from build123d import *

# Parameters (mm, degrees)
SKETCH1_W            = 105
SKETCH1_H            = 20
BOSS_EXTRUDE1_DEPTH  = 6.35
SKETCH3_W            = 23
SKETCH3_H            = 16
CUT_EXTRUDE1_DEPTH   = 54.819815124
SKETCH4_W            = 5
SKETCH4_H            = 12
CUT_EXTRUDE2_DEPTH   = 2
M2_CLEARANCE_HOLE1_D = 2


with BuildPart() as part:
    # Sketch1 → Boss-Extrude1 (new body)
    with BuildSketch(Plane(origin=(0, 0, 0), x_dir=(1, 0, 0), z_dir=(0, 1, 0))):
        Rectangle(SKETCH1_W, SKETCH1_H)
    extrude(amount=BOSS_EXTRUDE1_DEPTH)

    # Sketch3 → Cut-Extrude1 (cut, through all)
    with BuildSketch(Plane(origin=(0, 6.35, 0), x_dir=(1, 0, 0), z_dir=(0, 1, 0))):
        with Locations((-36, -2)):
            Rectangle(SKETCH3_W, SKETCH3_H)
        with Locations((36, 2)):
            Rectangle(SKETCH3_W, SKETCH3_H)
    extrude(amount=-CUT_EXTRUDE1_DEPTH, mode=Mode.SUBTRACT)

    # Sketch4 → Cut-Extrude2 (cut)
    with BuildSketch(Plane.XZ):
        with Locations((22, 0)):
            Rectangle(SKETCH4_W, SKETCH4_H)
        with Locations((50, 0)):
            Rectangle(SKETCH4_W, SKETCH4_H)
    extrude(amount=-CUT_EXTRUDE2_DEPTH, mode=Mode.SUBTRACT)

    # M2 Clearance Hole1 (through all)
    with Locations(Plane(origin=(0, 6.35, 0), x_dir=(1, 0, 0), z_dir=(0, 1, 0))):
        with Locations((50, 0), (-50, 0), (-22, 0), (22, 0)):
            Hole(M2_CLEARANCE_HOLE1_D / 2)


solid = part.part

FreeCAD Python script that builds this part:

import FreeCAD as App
import Part
import Sketcher

V = App.Vector
Q = App.Units.Quantity


def add_polygon(sketch, points):
    """Adds a closed chain of lines whose ends are joined by coincident constraints."""
    first, n = sketch.GeometryCount, len(points)
    for a, b in zip(points, points[1:] + points[:1]):
        sketch.addGeometry(Part.LineSegment(App.Vector(*a, 0), App.Vector(*b, 0)), False)
    for i in range(n):
        sketch.addConstraint(Sketcher.Constraint("Coincident", first + i, 2, first + (i + 1) % n, 1))

doc = App.newDocument("Part")
body = doc.addObject("PartDesign::Body", "Body")

sketch1 = doc.addObject("Sketcher::SketchObject", "Sketch")
body.addObject(sketch1)
sketch1.AttachmentSupport = (doc.XZ_Plane, [""])
sketch1.MapMode = "FlatFace"
add_polygon(sketch1, [(-52, -10), (-52, 10), (52, 10), (52, -10)])
sketch1.addConstraint(Sketcher.Constraint("Vertical", 0))
sketch1.addConstraint(Sketcher.Constraint("Horizontal", 1))
sketch1.addConstraint(Sketcher.Constraint("Vertical", 2))
sketch1.addConstraint(Sketcher.Constraint("Horizontal", 3))
sketch1.addConstraint(Sketcher.Constraint("Symmetric", 0, 2, 2, 2, -1, 1))
sketch1.addConstraint(Sketcher.Constraint("DistanceX", 1, 1, 1, 2, Q("105 mm")))
sketch1.addConstraint(Sketcher.Constraint("DistanceY", 0, 1, 0, 2, Q("20 mm")))
pad1 = doc.addObject("PartDesign::Pad", "Pad")
body.addObject(pad1)
pad1.Profile = sketch1
pad1.Length = 6.35
pad1.Reversed = True

sketch2 = doc.addObject("Sketcher::SketchObject", "Sketch001")
body.addObject(sketch2)
sketch2.AttachmentSupport = (doc.XZ_Plane, [""])
sketch2.MapMode = "FlatFace"
sketch2.AttachmentOffset = App.Placement(V(0, 0, -6.35), App.Rotation())
add_polygon(sketch2, [(-48, -6), (-48, 10), (-24, 10), (-24, -6)])
add_polygon(sketch2, [(24, -10), (24, 6), (48, 6), (48, -10)])
sketch2.addConstraint(Sketcher.Constraint("Vertical", 0))
sketch2.addConstraint(Sketcher.Constraint("Horizontal", 1))
sketch2.addConstraint(Sketcher.Constraint("Vertical", 2))
sketch2.addConstraint(Sketcher.Constraint("Horizontal", 3))
sketch2.addConstraint(Sketcher.Constraint("Vertical", 4))
sketch2.addConstraint(Sketcher.Constraint("Horizontal", 5))
sketch2.addConstraint(Sketcher.Constraint("Vertical", 6))
sketch2.addConstraint(Sketcher.Constraint("Horizontal", 7))
sketch2.addConstraint(Sketcher.Constraint("Symmetric", 2, 2, 4, 2, -1, 1))
sketch2.addConstraint(Sketcher.Constraint("Symmetric", 0, 2, 6, 2, -1, 1))
sketch2.addConstraint(Sketcher.Constraint("DistanceX", 1, 1, 1, 2, Q("23 mm")))
sketch2.addConstraint(Sketcher.Constraint("DistanceY", 0, 1, 0, 2, Q("16 mm")))
sketch2.addConstraint(Sketcher.Constraint("DistanceY", -1, 1, 0, 2, Q("10 mm")))
sketch2.addConstraint(Sketcher.Constraint("DistanceX", 1, 2, 4, 2, Q("49 mm")))
pocket1 = doc.addObject("PartDesign::Pocket", "Pocket")
body.addObject(pocket1)
pocket1.Profile = sketch2
pocket1.Type = "ThroughAll"
pocket1.Reversed = True

sketch3 = doc.addObject("Sketcher::SketchObject", "Sketch002")
body.addObject(sketch3)
sketch3.AttachmentSupport = (doc.XZ_Plane, [""])
sketch3.MapMode = "FlatFace"
add_polygon(sketch3, [(20, 6), (20, -6), (24, -6), (24, 6)])
add_polygon(sketch3, [(48, 6), (48, -6), (52, -6), (52, 6)])
sketch3.addConstraint(Sketcher.Constraint("Vertical", 0))
sketch3.addConstraint(Sketcher.Constraint("Horizontal", 1))
sketch3.addConstraint(Sketcher.Constraint("Vertical", 2))
sketch3.addConstraint(Sketcher.Constraint("Horizontal", 3))
sketch3.addConstraint(Sketcher.Constraint("Vertical", 4))
sketch3.addConstraint(Sketcher.Constraint("Horizontal", 5))
sketch3.addConstraint(Sketcher.Constraint("Vertical", 6))
sketch3.addConstraint(Sketcher.Constraint("Horizontal", 7))
sketch3.addConstraint(Sketcher.Constraint("Horizontal", 1, 2, 4, 2))
sketch3.addConstraint(Sketcher.Constraint("Horizontal", 3, 2, 6, 2))
sketch3.addConstraint(Sketcher.Constraint("Equal", 3, 5))
sketch3.addConstraint(Sketcher.Constraint("DistanceX", 1, 1, 1, 2, Q("5 mm")))
sketch3.addConstraint(Sketcher.Constraint("DistanceY", 0, 2, 0, 1, Q("12 mm")))
sketch3.addConstraint(Sketcher.Constraint("DistanceY", 0, 2, -1, 1, Q("6 mm")))
sketch3.addConstraint(Sketcher.Constraint("DistanceX", 1, 2, 4, 2, Q("23 mm")))
sketch3.addConstraint(Sketcher.Constraint("DistanceX", -1, 1, 0, 2, Q("19.5 mm")))
pocket2 = doc.addObject("PartDesign::Pocket", "Pocket001")
body.addObject(pocket2)
pocket2.Profile = sketch3
pocket2.Length = 2

sketch4 = doc.addObject("Sketcher::SketchObject", "Sketch003")
body.addObject(sketch4)
sketch4.AttachmentSupport = (doc.XZ_Plane, [""])
sketch4.MapMode = "FlatFace"
sketch4.AttachmentOffset = App.Placement(V(0, 0, -6.35), App.Rotation())
sketch4.addGeometry(Part.Circle(V(50, 0, 0), V(0, 0, 1), 1), False)
sketch4.addGeometry(Part.Circle(V(-50, 0, 0), V(0, 0, 1), 1), False)
sketch4.addGeometry(Part.Circle(V(-22, 0, 0), V(0, 0, 1), 1), False)
sketch4.addGeometry(Part.Circle(V(22, 0, 0), V(0, 0, 1), 1), False)
sketch4.addConstraint(Sketcher.Constraint("Equal", 0, 1))
sketch4.addConstraint(Sketcher.Constraint("Equal", 1, 2))
sketch4.addConstraint(Sketcher.Constraint("Equal", 2, 3))
sketch4.addConstraint(Sketcher.Constraint("Symmetric", 0, 3, 1, 3, -1, 1))
sketch4.addConstraint(Sketcher.Constraint("Symmetric", 2, 3, 3, 3, -1, 1))
sketch4.addConstraint(Sketcher.Constraint("PointOnObject", 0, 3, -1))
sketch4.addConstraint(Sketcher.Constraint("PointOnObject", 2, 3, -1))
sketch4.addConstraint(Sketcher.Constraint("Diameter", 0, Q("2 mm")))
sketch4.addConstraint(Sketcher.Constraint("DistanceX", -1, 1, 0, 3, Q("50 mm")))
sketch4.addConstraint(Sketcher.Constraint("DistanceX", 2, 3, -1, 1, Q("22 mm")))
doc.recompute()
hole = doc.addObject("PartDesign::Hole", "Hole")
body.addObject(hole)
hole.Profile = sketch4
hole.ThreadType = "None"
hole.Diameter = 2
hole.DepthType = "ThroughAll"
hole.Reversed = True

doc.recompute()
